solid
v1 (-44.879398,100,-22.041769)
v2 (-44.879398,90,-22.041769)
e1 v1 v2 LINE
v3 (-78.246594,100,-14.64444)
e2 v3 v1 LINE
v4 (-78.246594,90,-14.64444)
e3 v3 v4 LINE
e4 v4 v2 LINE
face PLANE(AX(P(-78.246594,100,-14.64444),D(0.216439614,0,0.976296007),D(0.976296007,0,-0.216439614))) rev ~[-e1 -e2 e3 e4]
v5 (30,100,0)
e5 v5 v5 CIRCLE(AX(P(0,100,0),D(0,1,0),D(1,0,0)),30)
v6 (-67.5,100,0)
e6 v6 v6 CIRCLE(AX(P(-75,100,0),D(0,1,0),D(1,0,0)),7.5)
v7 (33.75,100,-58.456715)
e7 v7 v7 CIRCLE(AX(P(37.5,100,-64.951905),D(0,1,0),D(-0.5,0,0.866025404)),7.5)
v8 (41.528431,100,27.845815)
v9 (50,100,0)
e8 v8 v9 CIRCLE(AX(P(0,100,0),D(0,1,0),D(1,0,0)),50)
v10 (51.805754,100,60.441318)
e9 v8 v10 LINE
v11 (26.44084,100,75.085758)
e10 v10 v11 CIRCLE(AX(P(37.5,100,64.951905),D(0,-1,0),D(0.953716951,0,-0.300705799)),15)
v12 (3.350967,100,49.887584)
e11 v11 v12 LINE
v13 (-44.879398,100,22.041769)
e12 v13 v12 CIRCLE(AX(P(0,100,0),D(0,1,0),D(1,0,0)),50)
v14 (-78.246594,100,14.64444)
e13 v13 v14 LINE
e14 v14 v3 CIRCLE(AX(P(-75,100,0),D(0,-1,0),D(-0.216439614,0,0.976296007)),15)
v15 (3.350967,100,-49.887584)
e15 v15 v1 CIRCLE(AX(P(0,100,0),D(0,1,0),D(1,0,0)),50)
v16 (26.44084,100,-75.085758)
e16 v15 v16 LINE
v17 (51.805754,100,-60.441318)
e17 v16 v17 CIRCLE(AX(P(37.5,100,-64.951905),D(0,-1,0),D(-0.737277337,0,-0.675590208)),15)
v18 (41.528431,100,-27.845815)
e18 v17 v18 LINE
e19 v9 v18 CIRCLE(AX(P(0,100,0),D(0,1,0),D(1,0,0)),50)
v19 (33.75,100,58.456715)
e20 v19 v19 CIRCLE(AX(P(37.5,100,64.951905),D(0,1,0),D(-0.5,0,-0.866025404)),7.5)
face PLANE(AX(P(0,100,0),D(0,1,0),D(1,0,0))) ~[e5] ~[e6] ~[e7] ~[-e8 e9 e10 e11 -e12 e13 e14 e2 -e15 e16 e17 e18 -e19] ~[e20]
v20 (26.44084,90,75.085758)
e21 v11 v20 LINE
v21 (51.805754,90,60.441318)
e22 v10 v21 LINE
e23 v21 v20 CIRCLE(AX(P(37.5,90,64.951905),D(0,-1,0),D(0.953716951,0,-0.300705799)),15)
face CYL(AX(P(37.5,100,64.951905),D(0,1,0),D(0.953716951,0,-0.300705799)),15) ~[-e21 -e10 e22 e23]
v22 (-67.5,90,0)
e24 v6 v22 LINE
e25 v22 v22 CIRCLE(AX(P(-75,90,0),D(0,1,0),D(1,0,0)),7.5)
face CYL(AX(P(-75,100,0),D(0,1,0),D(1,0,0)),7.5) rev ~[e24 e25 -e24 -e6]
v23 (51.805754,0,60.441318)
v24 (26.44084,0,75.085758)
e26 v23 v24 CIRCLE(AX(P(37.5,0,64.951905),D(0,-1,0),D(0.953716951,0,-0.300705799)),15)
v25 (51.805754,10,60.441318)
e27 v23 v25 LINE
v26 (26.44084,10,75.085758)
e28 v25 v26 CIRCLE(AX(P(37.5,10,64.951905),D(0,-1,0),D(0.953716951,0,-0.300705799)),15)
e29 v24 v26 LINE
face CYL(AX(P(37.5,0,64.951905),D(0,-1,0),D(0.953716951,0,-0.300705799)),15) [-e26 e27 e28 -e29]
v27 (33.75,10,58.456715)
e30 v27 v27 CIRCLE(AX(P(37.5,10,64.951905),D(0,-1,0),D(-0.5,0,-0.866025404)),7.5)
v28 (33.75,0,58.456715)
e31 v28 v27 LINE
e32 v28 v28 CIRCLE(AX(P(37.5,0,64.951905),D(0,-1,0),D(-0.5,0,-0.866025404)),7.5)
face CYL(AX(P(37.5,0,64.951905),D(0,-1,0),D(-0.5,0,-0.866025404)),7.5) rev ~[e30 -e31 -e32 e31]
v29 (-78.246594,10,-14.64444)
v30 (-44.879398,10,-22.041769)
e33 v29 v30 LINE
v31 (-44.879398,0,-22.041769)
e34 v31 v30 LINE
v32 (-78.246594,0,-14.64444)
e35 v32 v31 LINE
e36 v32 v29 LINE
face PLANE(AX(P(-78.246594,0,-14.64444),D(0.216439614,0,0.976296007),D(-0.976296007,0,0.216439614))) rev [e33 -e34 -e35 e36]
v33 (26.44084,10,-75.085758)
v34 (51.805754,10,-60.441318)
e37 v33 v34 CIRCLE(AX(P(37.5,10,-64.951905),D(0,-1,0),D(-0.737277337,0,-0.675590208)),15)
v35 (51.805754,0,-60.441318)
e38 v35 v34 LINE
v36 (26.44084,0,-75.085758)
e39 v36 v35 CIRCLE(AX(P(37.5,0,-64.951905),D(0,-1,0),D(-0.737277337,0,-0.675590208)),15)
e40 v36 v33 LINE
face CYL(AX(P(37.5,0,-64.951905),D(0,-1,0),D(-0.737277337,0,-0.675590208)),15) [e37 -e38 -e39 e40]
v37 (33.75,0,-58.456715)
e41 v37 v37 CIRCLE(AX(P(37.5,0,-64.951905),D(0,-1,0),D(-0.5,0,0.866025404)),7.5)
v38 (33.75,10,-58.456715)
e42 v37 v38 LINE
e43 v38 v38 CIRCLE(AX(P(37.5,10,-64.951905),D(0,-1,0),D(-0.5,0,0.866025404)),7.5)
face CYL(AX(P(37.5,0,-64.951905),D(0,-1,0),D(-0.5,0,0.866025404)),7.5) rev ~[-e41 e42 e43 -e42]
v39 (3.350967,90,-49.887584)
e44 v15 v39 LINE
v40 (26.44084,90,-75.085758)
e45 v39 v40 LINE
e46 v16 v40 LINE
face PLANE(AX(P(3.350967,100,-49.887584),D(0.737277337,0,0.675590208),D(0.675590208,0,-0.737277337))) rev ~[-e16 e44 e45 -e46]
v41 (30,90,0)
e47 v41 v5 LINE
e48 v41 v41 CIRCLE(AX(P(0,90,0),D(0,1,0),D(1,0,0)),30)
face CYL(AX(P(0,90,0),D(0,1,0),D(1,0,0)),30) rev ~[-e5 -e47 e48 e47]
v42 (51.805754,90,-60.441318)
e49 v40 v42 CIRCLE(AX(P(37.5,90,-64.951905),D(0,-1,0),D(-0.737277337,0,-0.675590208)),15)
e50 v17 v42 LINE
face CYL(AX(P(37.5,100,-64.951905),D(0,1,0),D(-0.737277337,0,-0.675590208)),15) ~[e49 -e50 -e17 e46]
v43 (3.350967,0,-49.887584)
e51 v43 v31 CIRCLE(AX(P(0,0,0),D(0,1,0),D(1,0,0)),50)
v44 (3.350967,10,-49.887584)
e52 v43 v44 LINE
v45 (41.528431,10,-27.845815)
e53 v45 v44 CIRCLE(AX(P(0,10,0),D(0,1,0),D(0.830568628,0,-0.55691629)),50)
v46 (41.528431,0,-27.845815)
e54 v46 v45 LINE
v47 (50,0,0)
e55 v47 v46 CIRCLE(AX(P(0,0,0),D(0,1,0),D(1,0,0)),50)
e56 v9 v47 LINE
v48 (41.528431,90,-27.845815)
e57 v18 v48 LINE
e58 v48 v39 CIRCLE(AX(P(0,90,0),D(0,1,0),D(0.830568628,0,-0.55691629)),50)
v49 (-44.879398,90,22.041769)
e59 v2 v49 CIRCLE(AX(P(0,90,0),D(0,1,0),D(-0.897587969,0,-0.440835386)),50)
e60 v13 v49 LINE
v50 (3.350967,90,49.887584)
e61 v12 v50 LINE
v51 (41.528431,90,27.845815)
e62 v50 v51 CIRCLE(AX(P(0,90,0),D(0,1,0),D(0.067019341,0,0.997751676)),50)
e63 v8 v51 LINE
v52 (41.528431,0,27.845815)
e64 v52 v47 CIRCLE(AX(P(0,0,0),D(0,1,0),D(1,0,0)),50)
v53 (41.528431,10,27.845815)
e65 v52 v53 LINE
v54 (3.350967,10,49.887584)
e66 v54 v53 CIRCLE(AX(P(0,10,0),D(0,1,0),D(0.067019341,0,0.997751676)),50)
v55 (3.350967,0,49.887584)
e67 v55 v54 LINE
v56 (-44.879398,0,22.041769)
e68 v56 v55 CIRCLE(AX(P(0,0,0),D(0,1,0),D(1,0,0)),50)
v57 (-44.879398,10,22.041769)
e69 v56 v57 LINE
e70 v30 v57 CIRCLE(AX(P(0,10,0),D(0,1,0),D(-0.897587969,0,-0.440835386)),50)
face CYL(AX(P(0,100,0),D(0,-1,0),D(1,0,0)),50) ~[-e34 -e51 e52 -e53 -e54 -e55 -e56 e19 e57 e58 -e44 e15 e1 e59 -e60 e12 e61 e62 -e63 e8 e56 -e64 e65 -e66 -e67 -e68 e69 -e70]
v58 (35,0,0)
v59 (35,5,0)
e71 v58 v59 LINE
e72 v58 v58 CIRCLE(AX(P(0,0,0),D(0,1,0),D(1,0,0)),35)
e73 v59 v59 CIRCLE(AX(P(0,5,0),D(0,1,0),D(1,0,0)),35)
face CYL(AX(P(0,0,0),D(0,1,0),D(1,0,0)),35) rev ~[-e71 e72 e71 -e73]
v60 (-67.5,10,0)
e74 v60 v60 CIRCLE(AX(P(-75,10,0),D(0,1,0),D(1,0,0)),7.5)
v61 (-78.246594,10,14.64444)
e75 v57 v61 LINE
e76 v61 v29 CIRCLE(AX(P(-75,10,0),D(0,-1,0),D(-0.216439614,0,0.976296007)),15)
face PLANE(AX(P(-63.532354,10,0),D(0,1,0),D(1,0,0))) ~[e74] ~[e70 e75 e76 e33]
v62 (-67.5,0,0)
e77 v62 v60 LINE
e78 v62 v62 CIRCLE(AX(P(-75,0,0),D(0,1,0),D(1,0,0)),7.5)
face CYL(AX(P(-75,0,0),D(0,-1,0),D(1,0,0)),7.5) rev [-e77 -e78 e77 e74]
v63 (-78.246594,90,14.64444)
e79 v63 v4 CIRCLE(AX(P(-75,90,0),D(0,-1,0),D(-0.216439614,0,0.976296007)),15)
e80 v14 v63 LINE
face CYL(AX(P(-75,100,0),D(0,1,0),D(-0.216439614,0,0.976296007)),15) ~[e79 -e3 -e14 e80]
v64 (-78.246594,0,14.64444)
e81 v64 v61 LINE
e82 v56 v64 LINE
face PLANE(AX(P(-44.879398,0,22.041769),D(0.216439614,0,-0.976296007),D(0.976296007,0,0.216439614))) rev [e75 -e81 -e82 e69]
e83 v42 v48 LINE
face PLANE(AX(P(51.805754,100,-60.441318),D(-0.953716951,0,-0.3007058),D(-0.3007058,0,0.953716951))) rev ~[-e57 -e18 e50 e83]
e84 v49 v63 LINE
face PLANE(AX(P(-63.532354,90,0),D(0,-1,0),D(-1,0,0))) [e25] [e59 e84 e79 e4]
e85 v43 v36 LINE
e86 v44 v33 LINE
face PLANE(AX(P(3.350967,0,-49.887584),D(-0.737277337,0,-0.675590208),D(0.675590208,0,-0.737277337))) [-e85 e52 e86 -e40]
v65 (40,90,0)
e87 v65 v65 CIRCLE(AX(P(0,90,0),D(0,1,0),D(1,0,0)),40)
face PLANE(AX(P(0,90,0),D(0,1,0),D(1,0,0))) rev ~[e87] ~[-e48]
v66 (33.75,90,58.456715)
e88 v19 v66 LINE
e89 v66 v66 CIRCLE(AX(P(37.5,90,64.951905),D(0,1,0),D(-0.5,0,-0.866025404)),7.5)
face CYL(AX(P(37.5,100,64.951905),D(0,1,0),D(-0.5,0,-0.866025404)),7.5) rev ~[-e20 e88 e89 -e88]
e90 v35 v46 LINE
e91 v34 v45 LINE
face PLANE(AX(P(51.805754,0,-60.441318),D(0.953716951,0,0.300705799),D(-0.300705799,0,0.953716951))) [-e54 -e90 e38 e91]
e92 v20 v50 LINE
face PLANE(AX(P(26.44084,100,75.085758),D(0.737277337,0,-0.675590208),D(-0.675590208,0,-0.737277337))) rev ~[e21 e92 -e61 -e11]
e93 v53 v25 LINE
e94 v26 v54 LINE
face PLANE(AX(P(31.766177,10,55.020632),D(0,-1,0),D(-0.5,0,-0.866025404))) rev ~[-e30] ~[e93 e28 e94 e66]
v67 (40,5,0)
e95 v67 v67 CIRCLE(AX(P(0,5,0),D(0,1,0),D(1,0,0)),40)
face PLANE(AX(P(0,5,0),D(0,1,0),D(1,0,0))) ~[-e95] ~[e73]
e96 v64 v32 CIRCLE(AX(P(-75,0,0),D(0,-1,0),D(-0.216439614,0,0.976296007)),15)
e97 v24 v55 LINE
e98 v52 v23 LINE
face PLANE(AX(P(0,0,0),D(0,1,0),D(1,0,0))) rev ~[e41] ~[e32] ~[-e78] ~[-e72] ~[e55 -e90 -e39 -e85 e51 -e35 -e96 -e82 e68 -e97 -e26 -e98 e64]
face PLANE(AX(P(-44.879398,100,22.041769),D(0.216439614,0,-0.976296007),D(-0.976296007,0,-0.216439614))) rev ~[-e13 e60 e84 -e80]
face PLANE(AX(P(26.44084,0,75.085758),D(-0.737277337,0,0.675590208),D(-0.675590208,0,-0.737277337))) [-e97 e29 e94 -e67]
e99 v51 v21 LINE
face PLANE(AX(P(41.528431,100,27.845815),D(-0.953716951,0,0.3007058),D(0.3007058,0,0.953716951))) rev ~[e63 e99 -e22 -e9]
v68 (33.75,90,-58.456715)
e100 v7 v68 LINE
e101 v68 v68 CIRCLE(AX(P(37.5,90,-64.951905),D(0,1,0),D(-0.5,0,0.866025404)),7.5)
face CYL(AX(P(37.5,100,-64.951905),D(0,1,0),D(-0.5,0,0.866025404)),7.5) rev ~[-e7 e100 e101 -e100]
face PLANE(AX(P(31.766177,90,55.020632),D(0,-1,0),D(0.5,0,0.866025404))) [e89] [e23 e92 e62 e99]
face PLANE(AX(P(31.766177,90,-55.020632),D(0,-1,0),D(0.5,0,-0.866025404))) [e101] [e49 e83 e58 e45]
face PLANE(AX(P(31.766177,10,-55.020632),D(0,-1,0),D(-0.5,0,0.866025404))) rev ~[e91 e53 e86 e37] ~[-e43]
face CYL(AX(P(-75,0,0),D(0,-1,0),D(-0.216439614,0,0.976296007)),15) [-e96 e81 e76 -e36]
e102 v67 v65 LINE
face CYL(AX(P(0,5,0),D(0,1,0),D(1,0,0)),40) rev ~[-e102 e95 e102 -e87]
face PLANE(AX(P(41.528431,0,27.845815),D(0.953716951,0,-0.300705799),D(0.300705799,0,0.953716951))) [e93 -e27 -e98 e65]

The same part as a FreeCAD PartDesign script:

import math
import FreeCAD as App
import Part
import Sketcher
from FreeCAD import Vector
Q = App.Units.Quantity


def add_polygon(sketch, points):
    """Adds a closed chain of lines whose ends are joined by coincident constraints."""
    first, n = sketch.GeometryCount, len(points)
    for a, b in zip(points, points[1:] + points[:1]):
        sketch.addGeometry(Part.LineSegment(App.Vector(*a, 0), App.Vector(*b, 0)), False)
    for i in range(n):
        sketch.addConstraint(Sketcher.Constraint("Coincident", first + i, 2, first + (i + 1) % n, 1))

doc = App.newDocument("Part")
body = doc.addObject("PartDesign::Body", "Body")

# Sketch on XY plane
sketch1 = body.newObject("Sketcher::SketchObject", "Sketch")
sketch1.AttachmentSupport = (doc.getObject("XY_Plane"), [""])
sketch1.MapMode = "FlatFace"
add_polygon(sketch1, [(35, 5), (35, 0), (50, 0), (50, 100), (30, 100), (30, 90), (40, 90), (40, 5)])  # lines 0-7
sketch1.addConstraint([
    Sketcher.Constraint("Vertical", 0),
    Sketcher.Constraint("Horizontal", 1),
    Sketcher.Constraint("Vertical", 2),
    Sketcher.Constraint("Horizontal", 3),
    Sketcher.Constraint("Vertical", 4),
    Sketcher.Constraint("Horizontal", 5),
    Sketcher.Constraint("Vertical", 6),
    Sketcher.Constraint("Horizontal", 7),
    Sketcher.Constraint("PointOnObject", 0, 2, -1),
    Sketcher.Constraint("Equal", 7, 0),
    Sketcher.Constraint("Equal", 5, 4),
    Sketcher.Constraint("DistanceX", 1, 1, 1, 2, 15.0),
    Sketcher.Constraint("DistanceX", 3, 2, 3, 1, 20.0),
    Sketcher.Constraint("DistanceX", 5, 1, 5, 2, 10.0),
    Sketcher.Constraint("DistanceY", 2, 1, 2, 2, 100.0),
    Sketcher.Constraint("DistanceX", -1, 1, 0, 2, 35.0),
])
revolution = body.newObject("PartDesign::Revolution", "Revolution")
revolution.Profile = sketch1
revolution.ReferenceAxis = (sketch1, ["V_Axis"])
revolution.Angle = 360

# Sketch on XZ plane
sketch2 = body.newObject("Sketcher::SketchObject", "Sketch001")
sketch2.AttachmentSupport = (doc.getObject("XZ_Plane"), [""])
sketch2.MapMode = "FlatFace"
sketch2.AttachmentOffset = App.Placement(Vector(0, 0, -100), App.Rotation())
sketch2.addGeometry([
    Part.LineSegment(Vector(-44.879398, -22.041769, 0), Vector(-78.246594, -14.64444, 0)),  # 0
    Part.ArcOfCircle(Part.Circle(Vector(-75, 0, 0), Vector(0, 0, 1), 15), math.radians(102.5), math.radians(257.5)),  # 1
    Part.LineSegment(Vector(-78.246594, 14.64444, 0), Vector(-44.879398, 22.041769, 0)),  # 2
    Part.ArcOfCircle(Part.Circle(Vector(0, 0, 0), Vector(0, 0, 1), 50), math.radians(153.842806), math.radians(206.157194)),  # 3
    Part.Circle(Vector(-75, 0, 0), Vector(0, 0, 1), 7.5),  # 4
], False)
sketch2.addConstraint([
    Sketcher.Constraint("Tangent", 0, 2, 1, 2),
    Sketcher.Constraint("Tangent", 1, 1, 2, 1),
    Sketcher.Constraint("Coincident", 2, 2, 3, 1),
    Sketcher.Constraint("Coincident", 3, 2, 0, 1),
    Sketcher.Constraint("Coincident", 3, 3, -1, 1),
    Sketcher.Constraint("Coincident", 4, 3, 1, 3),
    Sketcher.Constraint("Symmetric", 0, 2, 1, 1, -1),
    Sketcher.Constraint("Diameter", 4, 15.0),
    Sketcher.Constraint("Radius", 1, 15.0),
    Sketcher.Constraint("Radius", 3, 50.0),
    Sketcher.Constraint("DistanceX", 1, 3, -1, 1, 75.0),
    Sketcher.Constraint("Angle", 0, Q("167.5 deg")),
])
pad1 = body.newObject("PartDesign::Pad", "Pad")
pad1.Profile = sketch2
pad1.Length = 10
doc.recompute()

polarpattern = body.newObject("PartDesign::PolarPattern", "PolarPattern")
polarpattern.Originals = [pad1]
polarpattern.Axis = (doc.getObject("Y_Axis"), [""])
polarpattern.Angle = 360
polarpattern.Occurrences = 3
body.Tip = polarpattern
doc.recompute()

datumplane = body.newObject("PartDesign::Plane", "DatumPlane")
datumplane.AttachmentSupport = (doc.getObject("XZ_Plane"), [""])
datumplane.MapMode = "FlatFace"
datumplane.AttachmentOffset = App.Placement(Vector(0, 0, -50), App.Rotation())
mirrored = body.newObject("PartDesign::Mirrored", "Mirrored")
mirrored.Originals = [pad1]
mirrored.MirrorPlane = (datumplane, [""])
body.Tip = mirrored

# Sketch on XZ plane
sketch3 = body.newObject("Sketcher::SketchObject", "Sketch002")
sketch3.AttachmentSupport = (doc.getObject("XZ_Plane"), [""])
sketch3.MapMode = "FlatFace"
sketch3.addGeometry([
    Part.LineSegment(Vector(26.44084, 75.085758, 0), Vector(3.350967, 49.887584, 0)),  # 0
    Part.ArcOfCircle(Part.Circle(Vector(0, 0, 0), Vector(0, 0, 1), 50), math.radians(33.842806), math.radians(86.157194)),  # 1
    Part.LineSegment(Vector(41.528431, 27.845815, 0), Vector(51.805754, 60.441318, 0)),  # 2
    Part.ArcOfCircle(Part.Circle(Vector(37.5, 64.951905, 0), Vector(0, 0, 1), 15), math.radians(-17.5), math.radians(137.5)),  # 3
    Part.Circle(Vector(37.5, 64.951905, 0), Vector(0, 0, 1), 7.5),  # 4
], False)
sketch3.addConstraint([
    Sketcher.Constraint("Coincident", 0, 2, 1, 2),
    Sketcher.Constraint("Coincident", 1, 1, 2, 1),
    Sketcher.Constraint("Tangent", 2, 2, 3, 1),
    Sketcher.Constraint("Tangent", 3, 2, 0, 1),
    Sketcher.Constraint("Coincident", 1, 3, -1, 1),
    Sketcher.Constraint("Coincident", 4, 3, 3, 3),
    Sketcher.Constraint("Equal", 0, 2),
    Sketcher.Constraint("Diameter", 4, 15.0),
    Sketcher.Constraint("Radius", 1, 50.0),
    Sketcher.Constraint("Radius", 3, 15.0),
    Sketcher.Constraint("Angle", 0, Q("-132.5 deg")),
    Sketcher.Constraint("Angle", 2, Q("72.5 deg")),
    Sketcher.Constraint("DistanceX", -1, 1, 3, 3, 37.5),
])
pad2 = body.newObject("PartDesign::Pad", "Pad001")
pad2.Profile = sketch3
pad2.Length = 10
pad2.Reversed = True

# Sketch on XZ plane
sketch4 = body.newObject("Sketcher::SketchObject", "Sketch003")
sketch4.AttachmentSupport = (doc.getObject("XZ_Plane"), [""])
sketch4.MapMode = "FlatFace"
sketch4.addGeometry([
    Part.LineSegment(Vector(51.805754, -60.441318, 0), Vector(41.528431, -27.845815, 0)),  # 0
    Part.ArcOfCircle(Part.Circle(Vector(0, 0, 0), Vector(0, 0, 1), 50), math.radians(-86.157194), math.radians(-33.842806)),  # 1
    Part.LineSegment(Vector(3.350967, -49.887584, 0), Vector(26.44084, -75.085758, 0)),  # 2
    Part.ArcOfCircle(Part.Circle(Vector(37.5, -64.951905, 0), Vector(0, 0, 1), 15), math.radians(-137.5), math.radians(17.5)),  # 3
    Part.Circle(Vector(37.5, -64.951905, 0), Vector(0, 0, 1), 7.5),  # 4
], False)
sketch4.addConstraint([
    Sketcher.Constraint("Coincident", 0, 2, 1, 2),
    Sketcher.Constraint("Coincident", 1, 1, 2, 1),
    Sketcher.Constraint("Tangent", 2, 2, 3, 1),
    Sketcher.Constraint("Tangent", 3, 2, 0, 1),
    Sketcher.Constraint("Coincident", 1, 3, -1, 1),
    Sketcher.Constraint("Coincident", 4, 3, 3, 3),
    Sketcher.Constraint("Equal", 0, 2),
    Sketcher.Constraint("Diameter", 4, 15.0),
    Sketcher.Constraint("Radius", 1, 50.0),
    Sketcher.Constraint("Radius", 3, 15.0),
    Sketcher.Constraint("Angle", 0, Q("107.5 deg")),
    Sketcher.Constraint("Angle", 2, Q("-47.5 deg")),
    Sketcher.Constraint("DistanceX", -1, 1, 3, 3, 37.5),
])
pad3 = body.newObject("PartDesign::Pad", "Pad002")
pad3.Profile = sketch4
pad3.Length = 10
pad3.Reversed = True

doc.recompute()
